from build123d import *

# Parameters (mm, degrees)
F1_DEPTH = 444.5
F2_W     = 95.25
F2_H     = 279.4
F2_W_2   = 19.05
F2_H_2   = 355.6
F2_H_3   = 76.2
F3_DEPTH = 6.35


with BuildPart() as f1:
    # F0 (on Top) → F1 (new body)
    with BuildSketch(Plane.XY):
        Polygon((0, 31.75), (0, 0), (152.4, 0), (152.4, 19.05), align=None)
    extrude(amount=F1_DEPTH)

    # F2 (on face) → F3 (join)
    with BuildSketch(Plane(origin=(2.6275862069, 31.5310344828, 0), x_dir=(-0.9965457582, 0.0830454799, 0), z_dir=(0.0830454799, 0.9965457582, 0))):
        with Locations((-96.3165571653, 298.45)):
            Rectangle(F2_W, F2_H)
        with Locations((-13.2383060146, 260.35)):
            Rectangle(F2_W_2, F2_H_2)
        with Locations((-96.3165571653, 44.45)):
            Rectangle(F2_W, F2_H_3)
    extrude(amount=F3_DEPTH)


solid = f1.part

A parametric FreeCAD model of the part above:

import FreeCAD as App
import Part
import Sketcher

V = App.Vector
Q = App.Units.Quantity


def add_polygon(sketch, points):
    """Adds a closed chain of lines whose ends are joined by coincident constraints."""
    first, n = sketch.GeometryCount, len(points)
    for a, b in zip(points, points[1:] + points[:1]):
        sketch.addGeometry(Part.LineSegment(App.Vector(*a, 0), App.Vector(*b, 0)), False)
    for i in range(n):
        sketch.addConstraint(Sketcher.Constraint("Coincident", first + i, 2, first + (i + 1) % n, 1))

doc = App.newDocument("Part")
params = doc.addObject("Spreadsheet::Sheet", "Params")
for row, (alias, value) in enumerate([
    ("sketch1_width", "6 in"),
    ("sketch1_height", "1.25 in"),
    ("sketch1_height2", "0.75 in"),
    ("pad1_length", "17.5 in"),
    ("sketch2_height", "11 in"),
    ("sketch2_height2", "14 in"),
    ("sketch2_height3", "3 in"),
    ("sketch2_width", "3.75 in"),
    ("sketch2_width2", "0.75 in"),
    ("pad2_length", "0.25 in"),
], start=1):
    params.set(f"A{row}", alias)
    params.set(f"B{row}", "=" + value)
    params.setAlias(f"B{row}", alias)

body = doc.addObject("PartDesign::Body", "Body")

# Sketch on XY plane
sketch1 = body.newObject("Sketcher::SketchObject", "Sketch")
sketch1.AttachmentSupport = (doc.getObject("XY_Plane"), [""])
sketch1.MapMode = "FlatFace"
add_polygon(sketch1, [(0, 31.75), (0, 0), (152.4, 0), (152.4, 19.05)])  # lines 0-3
sketch1.addConstraint(Sketcher.Constraint("Vertical", 0))
sketch1.addConstraint(Sketcher.Constraint("Horizontal", 1))
sketch1.addConstraint(Sketcher.Constraint("Vertical", 2))
sketch1.addConstraint(Sketcher.Constraint("Coincident", 0, 2, -1, 1))
sketch1.addConstraint(Sketcher.Constraint("DistanceX", 1, 1, 1, 2, Q("6 in")))
sketch1.addConstraint(Sketcher.Constraint("DistanceY", 0, 2, 0, 1, Q("1.25 in")))
sketch1.addConstraint(Sketcher.Constraint("DistanceY", 2, 1, 2, 2, Q("0.75 in")))
sketch1.setExpression("Constraints[8]", "Params.sketch1_width")
sketch1.setExpression("Constraints[9]", "Params.sketch1_height")
sketch1.setExpression("Constraints[10]", "Params.sketch1_height2")
pad1 = body.newObject("PartDesign::Pad", "Pad")
pad1.Profile = sketch1
pad1.setExpression("Length", "Params.pad1_length")

# Sketch on an angled plane
sketch2 = body.newObject("Sketcher::SketchObject", "Sketch001")
sketch2.Placement = App.Placement(V(2.627586, 31.531034, 0), App.Rotation(V(-0.996545758, 0.08304548, 0), V(0, 0, 1), V(0.08304548, 0.996545758, 0), "ZXY"))
add_polygon(sketch2, [(-143.941557, 438.15), (-143.941557, 158.75), (-48.691557, 158.75), (-48.691557, 438.15)])  # lines 0-3
add_polygon(sketch2, [(-22.763306, 438.15), (-22.763306, 82.55), (-3.713306, 82.55), (-3.713306, 438.15)])  # lines 4-7
add_polygon(sketch2, [(-143.941557, 82.55), (-143.941557, 6.35), (-48.691557, 6.35), (-48.691557, 82.55)])  # lines 8-11
sketch2.addConstraint(Sketcher.Constraint("Vertical", 0))
sketch2.addConstraint(Sketcher.Constraint("Horizontal", 1))
sketch2.addConstraint(Sketcher.Constraint("Vertical", 2))
sketch2.addConstraint(Sketcher.Constraint("Horizontal", 3))
sketch2.addConstraint(Sketcher.Constraint("Vertical", 4))
sketch2.addConstraint(Sketcher.Constraint("Horizontal", 5))
sketch2.addConstraint(Sketcher.Constraint("Vertical", 6))
sketch2.addConstraint(Sketcher.Constraint("Horizontal", 7))
sketch2.addConstraint(Sketcher.Constraint("Vertical", 8))
sketch2.addConstraint(Sketcher.Constraint("Horizontal", 9))
sketch2.addConstraint(Sketcher.Constraint("Vertical", 10))
sketch2.addConstraint(Sketcher.Constraint("Horizontal", 11))
sketch2.addConstraint(Sketcher.Constraint("Horizontal", 3, 2, 6, 2))
sketch2.addConstraint(Sketcher.Constraint("Horizontal", 5, 2, 10, 2))
sketch2.addConstraint(Sketcher.Constraint("Vertical", 3, 2, 8, 2))
sketch2.addConstraint(Sketcher.Constraint("Vertical", 2, 2, 9, 2))
sketch2.addConstraint(Sketcher.Constraint("DistanceY", 0, 2, 0, 1, Q("11 in")))
sketch2.addConstraint(Sketcher.Constraint("DistanceY", 4, 2, 4, 1, Q("14 in")))
sketch2.addConstraint(Sketcher.Constraint("DistanceY", 8, 2, 8, 1, Q("3 in")))
sketch2.addConstraint(Sketcher.Constraint("DistanceX", 1, 1, 1, 2, Q("3.75 in")))
sketch2.addConstraint(Sketcher.Constraint("DistanceX", 5, 1, 5, 2, Q("0.75 in")))
sketch2.addConstraint(Sketcher.Constraint("DistanceY", -1, 1, 0, 2, Q("6.25 in")))
sketch2.addConstraint(Sketcher.Constraint("DistanceX", 1, 2, 4, 2, 25.928251))
sketch2.addConstraint(Sketcher.Constraint("DistanceX", 0, 2, -1, 1, 143.941557))
sketch2.setExpression("Constraints[28]", "Params.sketch2_height")
sketch2.setExpression("Constraints[29]", "Params.sketch2_height2")
sketch2.setExpression("Constraints[30]", "Params.sketch2_height3")
sketch2.setExpression("Constraints[31]", "Params.sketch2_width")
sketch2.setExpression("Constraints[32]", "Params.sketch2_width2")
pad2 = body.newObject("PartDesign::Pad", "Pad001")
pad2.Profile = sketch2
pad2.setExpression("Length", "Params.pad2_length")

doc.recompute()
